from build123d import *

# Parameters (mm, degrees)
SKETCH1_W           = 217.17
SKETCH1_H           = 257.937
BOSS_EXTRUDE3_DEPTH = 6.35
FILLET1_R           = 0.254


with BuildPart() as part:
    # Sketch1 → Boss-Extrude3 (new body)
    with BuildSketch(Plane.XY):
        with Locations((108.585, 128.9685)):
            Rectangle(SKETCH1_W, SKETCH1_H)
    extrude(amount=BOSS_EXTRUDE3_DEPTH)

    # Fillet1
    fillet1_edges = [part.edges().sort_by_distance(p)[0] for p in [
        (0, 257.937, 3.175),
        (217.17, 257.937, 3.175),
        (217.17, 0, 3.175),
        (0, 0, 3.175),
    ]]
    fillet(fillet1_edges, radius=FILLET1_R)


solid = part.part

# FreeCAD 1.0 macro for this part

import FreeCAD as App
import Part
import Sketcher
Q = App.Units.Quantity


def edges_at(feature, points):
    """Names of the edges that pass closest to the given points."""
    edges = feature.Shape.Edges
    near = lambda p: min(range(len(edges)), key=lambda i: edges[i].distToShape(Part.Vertex(*p))[0])
    return sorted({f"Edge{near(p) + 1}" for p in points})

doc = App.newDocument("Part")
params = doc.addObject("Spreadsheet::Sheet", "Params")
for row, (alias, value) in enumerate([
    ("sketch1_width", "8.55 in"),
    ("sketch1_height", "10.155 in"),
    ("pad1_length", "0.25 in"),
    ("fillet_radius", "0.01 in"),
], start=1):
    params.set(f"A{row}", alias)
    params.set(f"B{row}", "=" + value)
    params.setAlias(f"B{row}", alias)

body = doc.addObject("PartDesign::Body", "Body")

sketch1 = doc.addObject("Sketcher::SketchObject", "Sketch")
body.addObject(sketch1)
sketch1.AttachmentSupport = (doc.XY_Plane, [""])
sketch1.MapMode = "FlatFace"
sketch1.addGeometry([
    Part.LineSegment(App.Vector(0, 257.937, 0), App.Vector(0, 0, 0)),
    Part.LineSegment(App.Vector(0, 0, 0), App.Vector(217.17, 0, 0)),
    Part.LineSegment(App.Vector(217.17, 0, 0), App.Vector(217.17, 257.937, 0)),
    Part.LineSegment(App.Vector(217.17, 257.937, 0), App.Vector(0, 257.937, 0)),
], False)
sketch1.addConstraint([
    Sketcher.Constraint("Coincident", 0, 2, 1, 1),
    Sketcher.Constraint("Coincident", 1, 2, 2, 1),
    Sketcher.Constraint("Coincident", 2, 2, 3, 1),
    Sketcher.Constraint("Coincident", 3, 2, 0, 1),
    Sketcher.Constraint("Vertical", 0),
    Sketcher.Constraint("Horizontal", 1),
    Sketcher.Constraint("Vertical", 2),
    Sketcher.Constraint("Horizontal", 3),
    Sketcher.Constraint("Coincident", 0, 2, -1, 1),
    Sketcher.Constraint("DistanceX", 1, 1, 1, 2, Q("8.55 in")),
    Sketcher.Constraint("DistanceY", 0, 2, 0, 1, Q("10.155 in")),
])
sketch1.setExpression("Constraints[9]", "Params.sketch1_width")
sketch1.setExpression("Constraints[10]", "Params.sketch1_height")
pad1 = doc.addObject("PartDesign::Pad", "Pad")
body.addObject(pad1)
pad1.Profile = sketch1
pad1.setExpression("Length", "Params.pad1_length")
doc.recompute()

fillet = doc.addObject("PartDesign::Fillet", "Fillet")
body.addObject(fillet)
fillet.Base = (pad1, edges_at(pad1, [
    (0, 257.937, 3.175),
    (217.17, 257.937, 3.175),
    (217.17, 0, 3.175),
    (0, 0, 3.175),
]))
fillet.setExpression("Radius", "Params.fillet_radius")

doc.recompute()
